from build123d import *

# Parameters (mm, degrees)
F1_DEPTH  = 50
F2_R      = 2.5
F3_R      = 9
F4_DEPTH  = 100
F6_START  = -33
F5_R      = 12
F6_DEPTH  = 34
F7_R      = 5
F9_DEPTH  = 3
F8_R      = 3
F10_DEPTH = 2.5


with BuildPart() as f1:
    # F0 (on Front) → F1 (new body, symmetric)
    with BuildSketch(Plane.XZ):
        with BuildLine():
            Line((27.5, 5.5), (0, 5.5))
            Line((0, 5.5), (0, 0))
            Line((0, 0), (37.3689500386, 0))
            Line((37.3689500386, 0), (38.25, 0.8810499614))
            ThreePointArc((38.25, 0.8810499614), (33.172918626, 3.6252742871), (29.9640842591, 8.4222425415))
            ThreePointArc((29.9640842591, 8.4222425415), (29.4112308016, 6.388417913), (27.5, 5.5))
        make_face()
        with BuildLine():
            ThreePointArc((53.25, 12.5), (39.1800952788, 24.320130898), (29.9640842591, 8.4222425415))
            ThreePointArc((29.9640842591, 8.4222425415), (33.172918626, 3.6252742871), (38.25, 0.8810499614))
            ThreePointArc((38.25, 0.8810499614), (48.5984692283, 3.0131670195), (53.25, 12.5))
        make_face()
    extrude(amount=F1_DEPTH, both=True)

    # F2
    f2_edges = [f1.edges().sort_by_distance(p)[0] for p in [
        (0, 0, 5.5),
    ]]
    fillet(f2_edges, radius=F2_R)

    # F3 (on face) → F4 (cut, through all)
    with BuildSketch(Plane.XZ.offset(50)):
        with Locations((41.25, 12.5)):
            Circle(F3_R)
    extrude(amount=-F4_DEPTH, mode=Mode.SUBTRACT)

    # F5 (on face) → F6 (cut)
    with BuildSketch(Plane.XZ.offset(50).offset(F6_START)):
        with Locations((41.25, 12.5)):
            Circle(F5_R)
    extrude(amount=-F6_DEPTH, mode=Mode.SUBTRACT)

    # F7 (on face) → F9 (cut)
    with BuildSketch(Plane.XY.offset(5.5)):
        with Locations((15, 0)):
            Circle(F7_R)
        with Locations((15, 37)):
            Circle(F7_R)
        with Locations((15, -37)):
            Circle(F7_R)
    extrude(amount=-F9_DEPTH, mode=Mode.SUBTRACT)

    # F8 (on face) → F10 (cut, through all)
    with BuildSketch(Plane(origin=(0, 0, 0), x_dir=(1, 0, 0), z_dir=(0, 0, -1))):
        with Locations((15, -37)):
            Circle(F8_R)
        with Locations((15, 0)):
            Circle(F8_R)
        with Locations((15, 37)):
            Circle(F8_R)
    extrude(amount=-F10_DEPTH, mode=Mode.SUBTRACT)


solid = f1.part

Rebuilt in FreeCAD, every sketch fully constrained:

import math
import FreeCAD as App
import Part
import Sketcher
from FreeCAD import Vector
Q = App.Units.Quantity


def edges_at(feature, points):
    """Names of the edges that pass closest to the given points."""
    edges = feature.Shape.Edges
    near = lambda p: min(range(len(edges)), key=lambda i: edges[i].distToShape(Part.Vertex(*p))[0])
    return sorted({f"Edge{near(p) + 1}" for p in points})

doc = App.newDocument("Part")
body = doc.addObject("PartDesign::Body", "Body")

# Sketch on XZ plane
sketch1 = doc.addObject("Sketcher::SketchObject", "Sketch")
body.addObject(sketch1)
sketch1.AttachmentSupport = (doc.XZ_Plane, [""])
sketch1.MapMode = "FlatFace"
sketch1.addGeometry([
    Part.LineSegment(Vector(27.5, 5.5, 0), Vector(0, 5.5, 0)),  # 0
    Part.LineSegment(Vector(0, 5.5, 0), Vector(0, 0, 0)),  # 1
    Part.LineSegment(Vector(0, 0, 0), Vector(37.4, 0, 0)),  # 2
    Part.LineSegment(Vector(37.4, 0, 0), Vector(38.2, 0.9, 0)),  # 3
    Part.ArcOfCircle(Part.Circle(Vector(41.2, 12.5, 0), Vector(0, 0, 1), 12), math.radians(-104), math.radians(0)),  # 4
    Part.ArcOfCircle(Part.Circle(Vector(41.2, 12.5, 0), Vector(0, 0, 1), 12), math.radians(0), math.radians(200)),  # 5
    Part.ArcOfCircle(Part.Circle(Vector(27.5, 8, 0), Vector(0, 0, 1), 2.5), math.radians(-90), math.radians(10)),  # 6
], False)
sketch1.addConstraint([
    Sketcher.Constraint("Coincident", 0, 2, 1, 1),
    Sketcher.Constraint("Coincident", 1, 2, 2, 1),
    Sketcher.Constraint("Coincident", 2, 2, 3, 1),
    Sketcher.Constraint("Coincident", 3, 2, 4, 1),
    Sketcher.Constraint("Tangent", 4, 2, 5, 1),
    Sketcher.Constraint("Coincident", 5, 2, 6, 2),
    Sketcher.Constraint("Tangent", 6, 1, 0, 1),
    Sketcher.Constraint("Horizontal", 0),
    Sketcher.Constraint("Vertical", 1),
    Sketcher.Constraint("Horizontal", 2),
    Sketcher.Constraint("Coincident", 1, 2, -1, 1),
    Sketcher.Constraint("Equal", 4, 5),
    Sketcher.Constraint("Horizontal", 5, 3, 4, 2),
    Sketcher.Constraint("Radius", 4, Q("12 mm")),
    Sketcher.Constraint("Radius", 6, Q("2.5 mm")),
    Sketcher.Constraint("Angle", 3, Q("45 deg")),
    Sketcher.Constraint("DistanceX", 0, 2, 0, 1, Q("27.5 mm")),
    Sketcher.Constraint("DistanceY", 1, 2, 1, 1, Q("5.5 mm")),
    Sketcher.Constraint("DistanceY", 0, 2, 4, 3, Q("7 mm")),
    Sketcher.Constraint("DistanceX", 3, 2, 4, 3, Q("3 mm")),
    Sketcher.Constraint("DistanceX", -1, 1, 4, 3, Q("41.25 mm")),
])
pad1 = doc.addObject("PartDesign::Pad", "Pad")
body.addObject(pad1)
pad1.Profile = sketch1
pad1.Length = 100
pad1.Midplane = True
doc.recompute()

fillet = doc.addObject("PartDesign::Fillet", "Fillet")
body.addObject(fillet)
fillet.Base = (pad1, edges_at(pad1, [(0, 0, 5.5)]))
fillet.Radius = 2.5

# Sketch on XZ plane
sketch2 = doc.addObject("Sketcher::SketchObject", "Sketch001")
body.addObject(sketch2)
sketch2.AttachmentSupport = (doc.XZ_Plane, [""])
sketch2.MapMode = "FlatFace"
sketch2.AttachmentOffset = App.Placement(Vector(0, 0, 50), App.Rotation())
sketch2.addGeometry(Part.Circle(Vector(41, 12, 0), Vector(0, 0, 1), 9), False)
sketch2.addConstraint([
    Sketcher.Constraint("Diameter", 0, Q("18 mm")),
    Sketcher.Constraint("DistanceY", -1, 1, 0, 3, Q("12.5 mm")),
    Sketcher.Constraint("DistanceX", -1, 1, 0, 3, Q("41.25 mm")),
])
pocket1 = doc.addObject("PartDesign::Pocket", "Pocket")
body.addObject(pocket1)
pocket1.Profile = sketch2
pocket1.Type = "ThroughAll"

# Sketch on XZ plane
sketch3 = doc.addObject("Sketcher::SketchObject", "Sketch002")
body.addObject(sketch3)
sketch3.AttachmentSupport = (doc.XZ_Plane, [""])
sketch3.MapMode = "FlatFace"
sketch3.AttachmentOffset = App.Placement(Vector(0, 0, 17), App.Rotation())
sketch3.addGeometry(Part.Circle(Vector(41, 12, 0), Vector(0, 0, 1), 12), False)
sketch3.addConstraint([
    Sketcher.Constraint("Diameter", 0, Q("24 mm")),
    Sketcher.Constraint("DistanceY", -1, 1, 0, 3, Q("12.5 mm")),
    Sketcher.Constraint("DistanceX", -1, 1, 0, 3, Q("41.25 mm")),
])
pocket2 = doc.addObject("PartDesign::Pocket", "Pocket001")
body.addObject(pocket2)
pocket2.Profile = sketch3
pocket2.Length = 34

# Sketch on XY plane
sketch4 = doc.addObject("Sketcher::SketchObject", "Sketch003")
body.addObject(sketch4)
sketch4.AttachmentSupport = (doc.XY_Plane, [""])
sketch4.MapMode = "FlatFace"
sketch4.AttachmentOffset = App.Placement(Vector(0, 0, 5.5), App.Rotation())
sketch4.addGeometry([
    Part.Circle(Vector(15, 0, 0), Vector(0, 0, 1), 5),
    Part.Circle(Vector(15, 37, 0), Vector(0, 0, 1), 5),
    Part.Circle(Vector(15, -37, 0), Vector(0, 0, 1), 5),
], False)
sketch4.addConstraint([
    Sketcher.Constraint("Equal", 0, 1),
    Sketcher.Constraint("Equal", 1, 2),
    Sketcher.Constraint("Symmetric", 1, 3, 2, 3, -1),
    Sketcher.Constraint("PointOnObject", 0, 3, -1),
    Sketcher.Constraint("Vertical", 0, 3, 1, 3),
    Sketcher.Constraint("Diameter", 0, Q("10 mm")),
    Sketcher.Constraint("DistanceX", -1, 1, 0, 3, Q("15 mm")),
    Sketcher.Constraint("DistanceY", -1, 1, 1, 3, Q("37 mm")),
])
pocket3 = doc.addObject("PartDesign::Pocket", "Pocket002")
body.addObject(pocket3)
pocket3.Profile = sketch4
pocket3.Length = 3

# Sketch on XY plane
sketch5 = doc.addObject("Sketcher::SketchObject", "Sketch004")
body.addObject(sketch5)
sketch5.AttachmentSupport = (doc.XY_Plane, [""])
sketch5.MapMode = "FlatFace"
sketch5.addGeometry([
    Part.Circle(Vector(15, 37, 0), Vector(0, 0, 1), 3),
    Part.Circle(Vector(15, 0, 0), Vector(0, 0, 1), 3),
    Part.Circle(Vector(15, -37, 0), Vector(0, 0, 1), 3),
], False)
sketch5.addConstraint([
    Sketcher.Constraint("Equal", 0, 1),
    Sketcher.Constraint("Equal", 1, 2),
    Sketcher.Constraint("Symmetric", 0, 3, 2, 3, -1),
    Sketcher.Constraint("PointOnObject", 1, 3, -1),
    Sketcher.Constraint("Vertical", 0, 3, 1, 3),
    Sketcher.Constraint("Diameter", 0, Q("6 mm")),
    Sketcher.Constraint("DistanceX", -1, 1, 0, 3, Q("15 mm")),
    Sketcher.Constraint("DistanceY", -1, 1, 0, 3, Q("37 mm")),
])
pocket4 = doc.addObject("PartDesign::Pocket", "Pocket003")
body.addObject(pocket4)
pocket4.Profile = sketch5
pocket4.Type = "ThroughAll"
pocket4.Reversed = True

doc.recompute()
